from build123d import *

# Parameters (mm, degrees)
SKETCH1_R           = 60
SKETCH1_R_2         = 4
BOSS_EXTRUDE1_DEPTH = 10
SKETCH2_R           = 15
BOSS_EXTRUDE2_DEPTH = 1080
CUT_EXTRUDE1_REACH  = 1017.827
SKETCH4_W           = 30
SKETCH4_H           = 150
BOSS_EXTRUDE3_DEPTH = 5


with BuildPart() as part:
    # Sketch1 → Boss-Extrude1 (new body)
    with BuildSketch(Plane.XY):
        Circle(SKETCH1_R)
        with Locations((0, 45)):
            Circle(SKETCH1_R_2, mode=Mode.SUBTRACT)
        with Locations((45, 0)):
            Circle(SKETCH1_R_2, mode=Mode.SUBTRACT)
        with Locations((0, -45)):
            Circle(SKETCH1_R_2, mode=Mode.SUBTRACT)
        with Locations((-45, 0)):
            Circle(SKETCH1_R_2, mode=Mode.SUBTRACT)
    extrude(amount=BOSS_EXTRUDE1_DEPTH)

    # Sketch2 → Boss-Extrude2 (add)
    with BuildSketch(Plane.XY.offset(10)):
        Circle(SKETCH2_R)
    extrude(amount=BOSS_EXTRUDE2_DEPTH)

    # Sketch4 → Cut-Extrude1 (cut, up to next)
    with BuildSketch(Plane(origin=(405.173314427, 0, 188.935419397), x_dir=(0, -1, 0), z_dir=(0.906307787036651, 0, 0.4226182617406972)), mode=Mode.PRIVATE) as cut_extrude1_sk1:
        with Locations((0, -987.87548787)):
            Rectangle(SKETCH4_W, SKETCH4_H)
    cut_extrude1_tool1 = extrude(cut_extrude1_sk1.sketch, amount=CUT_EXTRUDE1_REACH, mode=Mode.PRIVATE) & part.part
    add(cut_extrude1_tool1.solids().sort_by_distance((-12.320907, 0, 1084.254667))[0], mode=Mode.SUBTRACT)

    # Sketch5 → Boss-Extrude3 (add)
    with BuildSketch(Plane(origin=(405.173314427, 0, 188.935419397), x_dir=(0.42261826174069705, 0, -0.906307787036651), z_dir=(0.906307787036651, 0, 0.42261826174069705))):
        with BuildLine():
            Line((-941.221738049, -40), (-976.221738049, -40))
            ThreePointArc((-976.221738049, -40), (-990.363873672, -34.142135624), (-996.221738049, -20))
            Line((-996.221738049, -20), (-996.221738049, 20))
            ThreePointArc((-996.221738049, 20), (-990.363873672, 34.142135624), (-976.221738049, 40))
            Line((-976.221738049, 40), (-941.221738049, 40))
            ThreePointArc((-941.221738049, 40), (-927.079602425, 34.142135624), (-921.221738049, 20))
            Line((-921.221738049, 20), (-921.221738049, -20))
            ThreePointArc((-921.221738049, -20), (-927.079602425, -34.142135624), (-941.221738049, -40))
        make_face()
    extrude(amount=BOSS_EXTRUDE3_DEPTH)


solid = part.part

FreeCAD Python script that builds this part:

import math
import FreeCAD as App
import Part
import Sketcher
Q = App.Units.Quantity


def add_polygon(sketch, points):
    """Adds a closed chain of lines whose ends are joined by coincident constraints."""
    first, n = sketch.GeometryCount, len(points)
    for a, b in zip(points, points[1:] + points[:1]):
        sketch.addGeometry(Part.LineSegment(App.Vector(*a, 0), App.Vector(*b, 0)), False)
    for i in range(n):
        sketch.addConstraint(Sketcher.Constraint("Coincident", first + i, 2, first + (i + 1) % n, 1))

doc = App.newDocument("Part")
body = doc.addObject("PartDesign::Body", "Body")

sketch1 = body.newObject("Sketcher::SketchObject", "Sketch")
sketch1.AttachmentSupport = (doc.getObject("XY_Plane"), [""])
sketch1.MapMode = "FlatFace"
sketch1.addGeometry([
    Part.Circle(App.Vector(0, 0, 0), App.Vector(0, 0, 1), 60),
    Part.Circle(App.Vector(0, -45, 0), App.Vector(0, 0, 1), 4),
    Part.Circle(App.Vector(-45, 0, 0), App.Vector(0, 0, 1), 4),
    Part.Circle(App.Vector(45, 0, 0), App.Vector(0, 0, 1), 4),
    Part.Circle(App.Vector(0, 45, 0), App.Vector(0, 0, 1), 4),
], False)
sketch1.addConstraint([
    Sketcher.Constraint("Coincident", 0, 3, -1, 1),
    Sketcher.Constraint("Equal", 1, 2),
    Sketcher.Constraint("Equal", 2, 3),
    Sketcher.Constraint("Equal", 3, 4),
    Sketcher.Constraint("Symmetric", 2, 3, 3, 3, -1, 1),
    Sketcher.Constraint("Symmetric", 1, 3, 4, 3, -1, 1),
    Sketcher.Constraint("PointOnObject", 1, 3, -2),
    Sketcher.Constraint("PointOnObject", 2, 3, -1),
    Sketcher.Constraint("Diameter", 0, Q("120 mm")),
    Sketcher.Constraint("Diameter", 1, Q("8 mm")),
    Sketcher.Constraint("DistanceY", 1, 3, -1, 1, Q("45 mm")),
    Sketcher.Constraint("DistanceX", 2, 3, -1, 1, Q("45 mm")),
])
pad1 = body.newObject("PartDesign::Pad", "Pad")
pad1.Profile = sketch1
pad1.Length = 10

sketch2 = body.newObject("Sketcher::SketchObject", "Sketch001")
sketch2.AttachmentSupport = (doc.getObject("XY_Plane"), [""])
sketch2.MapMode = "FlatFace"
sketch2.AttachmentOffset = App.Placement(App.Vector(0, 0, 10), App.Rotation())
sketch2.addGeometry(Part.Circle(App.Vector(0, 0, 0), App.Vector(0, 0, 1), 15), False)
sketch2.addConstraint([
    Sketcher.Constraint("Coincident", 0, 3, -1, 1),
    Sketcher.Constraint("Diameter", 0, Q("30 mm")),
])
pad2 = body.newObject("PartDesign::Pad", "Pad001")
pad2.Profile = sketch2
pad2.Length = 1080

sketch3 = body.newObject("Sketcher::SketchObject", "Sketch002")
sketch3.Placement = App.Placement(App.Vector(405.173314, 0, 188.935419), App.Rotation(App.Vector(0, -1, 0), App.Vector(0.422618262, 0, -0.906307787), App.Vector(0.906307787, 0, 0.422618262), "ZXY"))
add_polygon(sketch3, [(-15, -912.875488), (-15, -1062.875488), (15, -1062.875488), (15, -912.875488)])
sketch3.addConstraint([
    Sketcher.Constraint("Vertical", 0),
    Sketcher.Constraint("Horizontal", 1),
    Sketcher.Constraint("Vertical", 2),
    Sketcher.Constraint("Horizontal", 3),
    Sketcher.Constraint("DistanceX", 1, 1, 1, 2, Q("30 mm")),
    Sketcher.Constraint("DistanceY", 0, 2, 0, 1, Q("150 mm")),
    Sketcher.Constraint("DistanceX", 0, 2, -1, 1, Q("15 mm")),
    Sketcher.Constraint("DistanceY", 0, 2, -1, 1, Q("1062.875488 mm")),
])
pocket1 = body.newObject("PartDesign::Pocket", "Pocket")
pocket1.Profile = sketch3
pocket1.Type = "UpToFirst"
pocket1.Reversed = True

sketch4 = body.newObject("Sketcher::SketchObject", "Sketch003")
sketch4.Placement = App.Placement(App.Vector(405.173314, 0, 188.935419), App.Rotation(App.Vector(0.422618262, 0, -0.906307787), App.Vector(0, 1, 0), App.Vector(0.906307787, 0, 0.422618262), "ZXY"))
sketch4.addGeometry([
    Part.LineSegment(App.Vector(-976.221738, -40, 0), App.Vector(-941.221738, -40, 0)),
    Part.ArcOfCircle(Part.Circle(App.Vector(-941.221738, -20, 0), App.Vector(0, 0, 1), 20), math.radians(-90), math.radians(0)),
    Part.LineSegment(App.Vector(-921.221738, -20, 0), App.Vector(-921.221738, 20, 0)),
    Part.ArcOfCircle(Part.Circle(App.Vector(-941.221738, 20, 0), App.Vector(0, 0, 1), 20), math.radians(0), math.radians(90)),
    Part.LineSegment(App.Vector(-941.221738, 40, 0), App.Vector(-976.221738, 40, 0)),
    Part.ArcOfCircle(Part.Circle(App.Vector(-976.221738, 20, 0), App.Vector(0, 0, 1), 20), math.radians(90), math.radians(180)),
    Part.LineSegment(App.Vector(-996.221738, 20, 0), App.Vector(-996.221738, -20, 0)),
    Part.ArcOfCircle(Part.Circle(App.Vector(-976.221738, -20, 0), App.Vector(0, 0, 1), 20), math.radians(-180), math.radians(-90)),
], False)
sketch4.addConstraint([
    Sketcher.Constraint("Tangent", 0, 2, 1, 1),
    Sketcher.Constraint("Tangent", 1, 2, 2, 1),
    Sketcher.Constraint("Tangent", 2, 2, 3, 1),
    Sketcher.Constraint("Tangent", 3, 2, 4, 1),
    Sketcher.Constraint("Tangent", 4, 2, 5, 1),
    Sketcher.Constraint("Tangent", 5, 2, 6, 1),
    Sketcher.Constraint("Tangent", 6, 2, 7, 1),
    Sketcher.Constraint("Tangent", 7, 2, 0, 1),
    Sketcher.Constraint("Horizontal", 0),
    Sketcher.Constraint("Vertical", 2),
    Sketcher.Constraint("Horizontal", 4),
    Sketcher.Constraint("Vertical", 6),
    Sketcher.Constraint("Equal", 1, 3),
    Sketcher.Constraint("Equal", 3, 5),
    Sketcher.Constraint("Equal", 5, 7),
    Sketcher.Constraint("Radius", 1, Q("20 mm")),
    Sketcher.Constraint("DistanceX", 0, 1, 0, 2, Q("35 mm")),
    Sketcher.Constraint("DistanceY", 2, 1, 2, 2, Q("40 mm")),
    Sketcher.Constraint("DistanceY", 1, 3, -1, 1, Q("20 mm")),
    Sketcher.Constraint("DistanceX", 1, 3, -1, 1, Q("941.221738 mm")),
])
pad3 = body.newObject("PartDesign::Pad", "Pad002")
pad3.Profile = sketch4
pad3.Length = 5

doc.recompute()
